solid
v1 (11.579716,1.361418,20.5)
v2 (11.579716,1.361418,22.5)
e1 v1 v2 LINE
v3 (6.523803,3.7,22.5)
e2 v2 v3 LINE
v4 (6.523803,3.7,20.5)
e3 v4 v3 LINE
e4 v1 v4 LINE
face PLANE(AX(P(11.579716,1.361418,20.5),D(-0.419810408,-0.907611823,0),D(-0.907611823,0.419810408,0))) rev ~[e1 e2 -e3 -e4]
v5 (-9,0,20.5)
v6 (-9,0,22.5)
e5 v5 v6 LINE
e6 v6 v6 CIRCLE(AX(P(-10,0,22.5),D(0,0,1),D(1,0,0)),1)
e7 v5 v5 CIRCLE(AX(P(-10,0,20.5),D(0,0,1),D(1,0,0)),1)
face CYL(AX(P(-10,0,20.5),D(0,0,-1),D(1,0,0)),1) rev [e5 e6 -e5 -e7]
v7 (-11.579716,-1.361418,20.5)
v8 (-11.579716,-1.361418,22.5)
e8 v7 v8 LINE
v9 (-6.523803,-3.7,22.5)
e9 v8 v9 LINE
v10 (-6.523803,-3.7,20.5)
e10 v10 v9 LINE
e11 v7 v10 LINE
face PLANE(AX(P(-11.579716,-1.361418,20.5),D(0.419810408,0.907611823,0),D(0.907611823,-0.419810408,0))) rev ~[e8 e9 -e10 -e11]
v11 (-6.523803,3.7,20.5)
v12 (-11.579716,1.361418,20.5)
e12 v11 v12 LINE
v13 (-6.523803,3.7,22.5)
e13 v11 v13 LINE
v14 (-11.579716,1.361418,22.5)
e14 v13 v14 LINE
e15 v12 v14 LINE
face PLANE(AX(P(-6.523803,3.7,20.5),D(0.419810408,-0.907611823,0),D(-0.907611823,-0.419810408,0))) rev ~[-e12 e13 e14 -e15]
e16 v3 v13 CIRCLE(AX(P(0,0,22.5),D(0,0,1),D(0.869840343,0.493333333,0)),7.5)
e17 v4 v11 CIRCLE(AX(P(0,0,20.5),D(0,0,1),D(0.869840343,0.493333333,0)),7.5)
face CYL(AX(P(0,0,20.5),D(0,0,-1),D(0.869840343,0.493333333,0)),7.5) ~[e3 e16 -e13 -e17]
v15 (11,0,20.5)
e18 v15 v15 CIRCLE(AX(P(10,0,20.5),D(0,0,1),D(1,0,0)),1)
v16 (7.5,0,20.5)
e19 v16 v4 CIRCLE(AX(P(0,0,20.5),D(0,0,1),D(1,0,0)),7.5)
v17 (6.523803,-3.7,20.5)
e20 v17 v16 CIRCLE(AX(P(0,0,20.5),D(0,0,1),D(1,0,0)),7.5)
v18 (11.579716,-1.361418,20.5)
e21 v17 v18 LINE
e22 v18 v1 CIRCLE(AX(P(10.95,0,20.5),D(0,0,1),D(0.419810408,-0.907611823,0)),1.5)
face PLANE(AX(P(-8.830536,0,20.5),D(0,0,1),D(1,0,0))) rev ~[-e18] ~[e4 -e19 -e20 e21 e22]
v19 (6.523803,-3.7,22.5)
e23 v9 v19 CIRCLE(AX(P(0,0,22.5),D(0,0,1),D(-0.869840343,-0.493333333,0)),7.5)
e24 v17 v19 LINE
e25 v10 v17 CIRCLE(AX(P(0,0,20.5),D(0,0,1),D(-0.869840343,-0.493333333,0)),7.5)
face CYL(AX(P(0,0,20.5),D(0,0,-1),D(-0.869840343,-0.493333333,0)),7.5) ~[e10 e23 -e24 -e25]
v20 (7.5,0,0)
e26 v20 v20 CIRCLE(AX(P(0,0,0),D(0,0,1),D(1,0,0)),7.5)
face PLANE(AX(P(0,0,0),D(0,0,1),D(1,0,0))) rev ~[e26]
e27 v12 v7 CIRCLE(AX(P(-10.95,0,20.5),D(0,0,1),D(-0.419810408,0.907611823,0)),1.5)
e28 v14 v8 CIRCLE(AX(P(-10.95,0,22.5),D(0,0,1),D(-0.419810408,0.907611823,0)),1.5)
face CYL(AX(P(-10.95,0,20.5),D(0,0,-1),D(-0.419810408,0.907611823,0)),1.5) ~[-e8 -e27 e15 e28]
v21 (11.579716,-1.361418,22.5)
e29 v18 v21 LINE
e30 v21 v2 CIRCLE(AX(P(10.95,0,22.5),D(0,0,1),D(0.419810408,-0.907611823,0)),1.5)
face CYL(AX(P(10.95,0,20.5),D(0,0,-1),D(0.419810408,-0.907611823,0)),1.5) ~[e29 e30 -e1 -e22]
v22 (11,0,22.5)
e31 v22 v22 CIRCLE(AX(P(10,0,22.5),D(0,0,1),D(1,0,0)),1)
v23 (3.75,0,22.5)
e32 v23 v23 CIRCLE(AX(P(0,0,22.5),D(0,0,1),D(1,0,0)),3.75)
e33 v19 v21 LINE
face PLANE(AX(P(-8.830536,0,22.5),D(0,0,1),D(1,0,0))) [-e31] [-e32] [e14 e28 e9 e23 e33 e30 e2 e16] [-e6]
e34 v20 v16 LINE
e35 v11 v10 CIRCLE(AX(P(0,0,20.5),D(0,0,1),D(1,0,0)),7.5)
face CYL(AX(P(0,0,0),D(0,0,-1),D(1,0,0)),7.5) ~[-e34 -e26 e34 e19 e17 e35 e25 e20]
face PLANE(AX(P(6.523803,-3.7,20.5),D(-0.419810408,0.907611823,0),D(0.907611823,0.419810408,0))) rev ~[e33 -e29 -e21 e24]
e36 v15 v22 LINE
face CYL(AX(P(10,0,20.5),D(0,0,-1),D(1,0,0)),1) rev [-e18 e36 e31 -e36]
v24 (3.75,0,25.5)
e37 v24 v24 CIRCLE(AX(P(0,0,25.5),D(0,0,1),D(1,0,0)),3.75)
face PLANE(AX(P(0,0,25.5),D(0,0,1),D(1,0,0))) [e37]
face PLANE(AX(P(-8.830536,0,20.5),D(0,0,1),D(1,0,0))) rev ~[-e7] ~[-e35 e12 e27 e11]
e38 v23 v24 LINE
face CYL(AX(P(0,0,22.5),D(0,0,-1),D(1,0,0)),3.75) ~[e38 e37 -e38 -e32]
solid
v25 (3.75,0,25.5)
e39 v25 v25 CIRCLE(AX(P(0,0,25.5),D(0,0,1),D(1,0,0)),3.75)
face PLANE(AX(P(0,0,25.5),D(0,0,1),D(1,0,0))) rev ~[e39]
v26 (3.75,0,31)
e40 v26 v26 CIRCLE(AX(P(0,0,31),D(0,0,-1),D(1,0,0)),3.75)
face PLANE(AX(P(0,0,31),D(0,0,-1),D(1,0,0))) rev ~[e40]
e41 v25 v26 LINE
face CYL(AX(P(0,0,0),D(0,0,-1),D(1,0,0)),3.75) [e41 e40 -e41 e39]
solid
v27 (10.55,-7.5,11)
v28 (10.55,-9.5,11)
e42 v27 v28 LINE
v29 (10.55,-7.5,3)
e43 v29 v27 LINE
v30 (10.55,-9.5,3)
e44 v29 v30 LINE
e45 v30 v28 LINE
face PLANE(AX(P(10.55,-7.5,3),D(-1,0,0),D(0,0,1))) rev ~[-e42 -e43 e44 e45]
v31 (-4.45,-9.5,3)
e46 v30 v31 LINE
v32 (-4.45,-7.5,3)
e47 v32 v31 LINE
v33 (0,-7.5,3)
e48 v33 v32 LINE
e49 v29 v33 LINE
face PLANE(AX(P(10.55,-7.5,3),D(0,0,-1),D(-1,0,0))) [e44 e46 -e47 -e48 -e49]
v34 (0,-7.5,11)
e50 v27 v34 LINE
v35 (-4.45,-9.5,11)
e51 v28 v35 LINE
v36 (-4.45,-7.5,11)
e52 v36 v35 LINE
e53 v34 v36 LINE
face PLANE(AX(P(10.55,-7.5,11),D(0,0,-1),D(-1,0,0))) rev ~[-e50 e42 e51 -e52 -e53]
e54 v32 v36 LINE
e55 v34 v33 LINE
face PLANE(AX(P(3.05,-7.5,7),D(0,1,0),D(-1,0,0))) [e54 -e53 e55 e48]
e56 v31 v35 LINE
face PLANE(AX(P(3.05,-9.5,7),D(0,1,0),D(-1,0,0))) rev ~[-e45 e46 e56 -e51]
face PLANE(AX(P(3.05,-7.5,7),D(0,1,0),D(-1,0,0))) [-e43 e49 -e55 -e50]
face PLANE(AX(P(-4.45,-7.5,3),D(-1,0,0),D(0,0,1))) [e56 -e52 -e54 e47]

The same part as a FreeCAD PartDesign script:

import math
import FreeCAD as App
import Part
import Sketcher
from FreeCAD import Vector
Q = App.Units.Quantity

doc = App.newDocument("Part")
body = doc.addObject("PartDesign::Body", "Body")

sketch1 = body.newObject("Sketcher::SketchObject", "Sketch")
sketch1.AttachmentSupport = (doc.getObject("XY_Plane"), [""])
sketch1.MapMode = "FlatFace"
sketch1.addGeometry(Part.Circle(Vector(0, 0, 0), Vector(0, 0, 1), 7.5), False)
sketch1.addConstraint([
    Sketcher.Constraint("Coincident", 0, 3, -1, 1),
    Sketcher.Constraint("Diameter", 0, Q("15 mm")),
])
pad1 = body.newObject("PartDesign::Pad", "Pad")
pad1.Profile = sketch1
pad1.Length = 20.5

sketch2 = body.newObject("Sketcher::SketchObject", "Sketch001")
sketch2.AttachmentSupport = (doc.getObject("XY_Plane"), [""])
sketch2.MapMode = "FlatFace"
sketch2.AttachmentOffset = App.Placement(Vector(0, 0, 20.5), App.Rotation())
sketch2.addGeometry([
    Part.LineSegment(Vector(-6.523803, 3.7, 0), Vector(-11.579716, 1.361418, 0)),
    Part.ArcOfCircle(Part.Circle(Vector(-10.95, 0, 0), Vector(0, 0, 1), 1.5), math.radians(114.822618), math.radians(245.177382)),
    Part.LineSegment(Vector(-11.579716, -1.361418, 0), Vector(-6.523803, -3.7, 0)),
    Part.ArcOfCircle(Part.Circle(Vector(0, 0, 0), Vector(0, 0, 1), 7.5), math.radians(-150.440092), math.radians(-29.559908)),
    Part.LineSegment(Vector(6.523803, -3.7, 0), Vector(11.579716, -1.361418, 0)),
    Part.ArcOfCircle(Part.Circle(Vector(10.95, 0, 0), Vector(0, 0, 1), 1.5), math.radians(-65.177382), math.radians(65.177382)),
    Part.LineSegment(Vector(11.579716, 1.361418, 0), Vector(6.523803, 3.7, 0)),
    Part.ArcOfCircle(Part.Circle(Vector(0, 0, 0), Vector(0, 0, 1), 7.5), math.radians(29.559908), math.radians(150.440092)),
    Part.Circle(Vector(-10, 0, 0), Vector(0, 0, 1), 1),
    Part.Circle(Vector(10, 0, 0), Vector(0, 0, 1), 1),
], False)
sketch2.addConstraint([
    Sketcher.Constraint("Tangent", 0, 2, 1, 1),
    Sketcher.Constraint("Tangent", 1, 2, 2, 1),
    Sketcher.Constraint("Coincident", 2, 2, 3, 1),
    Sketcher.Constraint("Coincident", 3, 2, 4, 1),
    Sketcher.Constraint("Tangent", 4, 2, 5, 1),
    Sketcher.Constraint("Tangent", 5, 2, 6, 1),
    Sketcher.Constraint("Coincident", 6, 2, 7, 1),
    Sketcher.Constraint("Coincident", 7, 2, 0, 1),
    Sketcher.Constraint("Coincident", 3, 3, -1, 1),
    Sketcher.Constraint("Coincident", 7, 3, -1, 1),
    Sketcher.Constraint("Equal", 1, 5),
    Sketcher.Constraint("Equal", 3, 7),
    Sketcher.Constraint("Equal", 8, 9),
    Sketcher.Constraint("Symmetric", 1, 3, 5, 3, -1, 1),
    Sketcher.Constraint("Symmetric", 8, 3, 9, 3, -1, 1),
    Sketcher.Constraint("Symmetric", 1, 2, 4, 2, -2),
    Sketcher.Constraint("PointOnObject", 8, 3, -1),
    Sketcher.Constraint("Parallel", 0, 4),
    Sketcher.Constraint("Parallel", 2, 6),
    Sketcher.Constraint("Diameter", 8, Q("2 mm")),
    Sketcher.Constraint("Radius", 1, Q("1.5 mm")),
    Sketcher.Constraint("Radius", 3, Q("7.5 mm")),
    Sketcher.Constraint("DistanceX", 8, 3, -1, 1, Q("10 mm")),
    Sketcher.Constraint("DistanceY", 2, 2, -1, 1, Q("3.7 mm")),
    Sketcher.Constraint("DistanceX", 1, 3, 5, 3, Q("21.9 mm")),
])
pad2 = body.newObject("PartDesign::Pad", "Pad001")
pad2.Profile = sketch2
pad2.Length = 2

sketch3 = body.newObject("Sketcher::SketchObject", "Sketch002")
sketch3.AttachmentSupport = (doc.getObject("XY_Plane"), [""])
sketch3.MapMode = "FlatFace"
sketch3.AttachmentOffset = App.Placement(Vector(0, 0, 22.5), App.Rotation())
sketch3.addGeometry(Part.Circle(Vector(0, 0, 0), Vector(0, 0, 1), 3.75), False)
sketch3.addConstraint([
    Sketcher.Constraint("Coincident", 0, 3, -1, 1),
    Sketcher.Constraint("Diameter", 0, Q("7.5 mm")),
])
pad3 = body.newObject("PartDesign::Pad", "Pad002")
pad3.Profile = sketch3
pad3.Length = 3
body2 = doc.addObject("PartDesign::Body", "Body001")

sketch4 = body2.newObject("Sketcher::SketchObject", "Sketch003")
sketch4.AttachmentSupport = (doc.getObject("XY_Plane001"), [""])
sketch4.MapMode = "FlatFace"
sketch4.addGeometry(Part.Circle(Vector(0, 0, 0), Vector(0, 0, 1), 3.75), False)
sketch4.addConstraint([
    Sketcher.Constraint("Coincident", 0, 3, -1, 1),
    Sketcher.Constraint("Diameter", 0, Q("7.5 mm")),
])
pad4 = body2.newObject("PartDesign::Pad", "Pad003")
pad4.Profile = sketch4
pad4.Length = 31
doc.recompute()

body3 = doc.addObject("PartDesign::Body", "Body002")
body3.BaseFeature = body
boolean = body2.newObject("PartDesign::Boolean", "Boolean")
boolean.Type = "Cut"
boolean.addObjects([body3])
doc.recompute()
body.AllowCompound = True

sketch5 = body.newObject("Sketcher::SketchObject", "Sketch004")
sketch5.AttachmentSupport = (doc.getObject("XZ_Plane"), [""])
sketch5.MapMode = "FlatFace"
sketch5.AttachmentOffset = App.Placement(Vector(0, 0, 7.5), App.Rotation())
sketch5.addGeometry([
    Part.LineSegment(Vector(10.55, 11, 0), Vector(10.55, 3, 0)),
    Part.LineSegment(Vector(10.55, 3, 0), Vector(-4.45, 3, 0)),
    Part.LineSegment(Vector(-4.45, 3, 0), Vector(-4.45, 11, 0)),
    Part.LineSegment(Vector(-4.45, 11, 0), Vector(10.55, 11, 0)),
], False)
sketch5.addConstraint([
    Sketcher.Constraint("Coincident", 0, 2, 1, 1),
    Sketcher.Constraint("Coincident", 1, 2, 2, 1),
    Sketcher.Constraint("Coincident", 2, 2, 3, 1),
    Sketcher.Constraint("Coincident", 3, 2, 0, 1),
    Sketcher.Constraint("Vertical", 0),
    Sketcher.Constraint("Horizontal", 1),
    Sketcher.Constraint("Vertical", 2),
    Sketcher.Constraint("Horizontal", 3),
    Sketcher.Constraint("DistanceX", 1, 2, 1, 1, Q("15 mm")),
    Sketcher.Constraint("DistanceY", 0, 2, 0, 1, Q("8 mm")),
    Sketcher.Constraint("DistanceY", -1, 1, 0, 2, Q("3 mm")),
    Sketcher.Constraint("DistanceX", -1, 1, 0, 2, Q("10.55 mm")),
])
pad5 = body.newObject("PartDesign::Pad", "Pad004")
pad5.Profile = sketch5
pad5.Length = 2

doc.recompute()
